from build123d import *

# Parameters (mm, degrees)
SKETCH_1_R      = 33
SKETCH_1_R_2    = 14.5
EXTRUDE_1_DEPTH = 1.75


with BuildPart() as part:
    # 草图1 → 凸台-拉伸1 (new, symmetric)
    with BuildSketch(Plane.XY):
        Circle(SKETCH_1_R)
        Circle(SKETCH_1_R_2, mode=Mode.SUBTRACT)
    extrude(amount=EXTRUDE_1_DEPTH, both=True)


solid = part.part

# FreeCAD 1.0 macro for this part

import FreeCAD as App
import Part
import Sketcher
from FreeCAD import Vector
Q = App.Units.Quantity

doc = App.newDocument("Part")
params = doc.addObject("Spreadsheet::Sheet", "Params")
for row, (alias, value) in enumerate([
    ("sketch1_diameter", "66 mm"),
    ("sketch1_diameter2", "29 mm"),
    ("pad1_length", "3.5 mm"),
], start=1):
    params.set(f"A{row}", alias)
    params.set(f"B{row}", "=" + value)
    params.setAlias(f"B{row}", alias)

body = doc.addObject("PartDesign::Body", "Body")

# Sketch on XY plane
sketch1 = body.newObject("Sketcher::SketchObject", "Sketch")
sketch1.AttachmentSupport = (doc.getObject("XY_Plane"), [""])
sketch1.MapMode = "FlatFace"
sketch1.addGeometry([
    Part.Circle(Vector(0, 0, 0), Vector(0, 0, 1), 33),
    Part.Circle(Vector(0, 0, 0), Vector(0, 0, 1), 14),
], False)
sketch1.addConstraint([
    Sketcher.Constraint("Coincident", 0, 3, -1, 1),
    Sketcher.Constraint("Coincident", 1, 3, -1, 1),
    Sketcher.Constraint("Diameter", 0, Q("66 mm")),
    Sketcher.Constraint("Diameter", 1, Q("29 mm")),
])
sketch1.setExpression("Constraints[2]", "Params.sketch1_diameter")
sketch1.setExpression("Constraints[3]", "Params.sketch1_diameter2")
pad1 = body.newObject("PartDesign::Pad", "Pad")
pad1.Profile = sketch1
pad1.setExpression("Length", "Params.pad1_length")
pad1.Midplane = True

doc.recompute()
